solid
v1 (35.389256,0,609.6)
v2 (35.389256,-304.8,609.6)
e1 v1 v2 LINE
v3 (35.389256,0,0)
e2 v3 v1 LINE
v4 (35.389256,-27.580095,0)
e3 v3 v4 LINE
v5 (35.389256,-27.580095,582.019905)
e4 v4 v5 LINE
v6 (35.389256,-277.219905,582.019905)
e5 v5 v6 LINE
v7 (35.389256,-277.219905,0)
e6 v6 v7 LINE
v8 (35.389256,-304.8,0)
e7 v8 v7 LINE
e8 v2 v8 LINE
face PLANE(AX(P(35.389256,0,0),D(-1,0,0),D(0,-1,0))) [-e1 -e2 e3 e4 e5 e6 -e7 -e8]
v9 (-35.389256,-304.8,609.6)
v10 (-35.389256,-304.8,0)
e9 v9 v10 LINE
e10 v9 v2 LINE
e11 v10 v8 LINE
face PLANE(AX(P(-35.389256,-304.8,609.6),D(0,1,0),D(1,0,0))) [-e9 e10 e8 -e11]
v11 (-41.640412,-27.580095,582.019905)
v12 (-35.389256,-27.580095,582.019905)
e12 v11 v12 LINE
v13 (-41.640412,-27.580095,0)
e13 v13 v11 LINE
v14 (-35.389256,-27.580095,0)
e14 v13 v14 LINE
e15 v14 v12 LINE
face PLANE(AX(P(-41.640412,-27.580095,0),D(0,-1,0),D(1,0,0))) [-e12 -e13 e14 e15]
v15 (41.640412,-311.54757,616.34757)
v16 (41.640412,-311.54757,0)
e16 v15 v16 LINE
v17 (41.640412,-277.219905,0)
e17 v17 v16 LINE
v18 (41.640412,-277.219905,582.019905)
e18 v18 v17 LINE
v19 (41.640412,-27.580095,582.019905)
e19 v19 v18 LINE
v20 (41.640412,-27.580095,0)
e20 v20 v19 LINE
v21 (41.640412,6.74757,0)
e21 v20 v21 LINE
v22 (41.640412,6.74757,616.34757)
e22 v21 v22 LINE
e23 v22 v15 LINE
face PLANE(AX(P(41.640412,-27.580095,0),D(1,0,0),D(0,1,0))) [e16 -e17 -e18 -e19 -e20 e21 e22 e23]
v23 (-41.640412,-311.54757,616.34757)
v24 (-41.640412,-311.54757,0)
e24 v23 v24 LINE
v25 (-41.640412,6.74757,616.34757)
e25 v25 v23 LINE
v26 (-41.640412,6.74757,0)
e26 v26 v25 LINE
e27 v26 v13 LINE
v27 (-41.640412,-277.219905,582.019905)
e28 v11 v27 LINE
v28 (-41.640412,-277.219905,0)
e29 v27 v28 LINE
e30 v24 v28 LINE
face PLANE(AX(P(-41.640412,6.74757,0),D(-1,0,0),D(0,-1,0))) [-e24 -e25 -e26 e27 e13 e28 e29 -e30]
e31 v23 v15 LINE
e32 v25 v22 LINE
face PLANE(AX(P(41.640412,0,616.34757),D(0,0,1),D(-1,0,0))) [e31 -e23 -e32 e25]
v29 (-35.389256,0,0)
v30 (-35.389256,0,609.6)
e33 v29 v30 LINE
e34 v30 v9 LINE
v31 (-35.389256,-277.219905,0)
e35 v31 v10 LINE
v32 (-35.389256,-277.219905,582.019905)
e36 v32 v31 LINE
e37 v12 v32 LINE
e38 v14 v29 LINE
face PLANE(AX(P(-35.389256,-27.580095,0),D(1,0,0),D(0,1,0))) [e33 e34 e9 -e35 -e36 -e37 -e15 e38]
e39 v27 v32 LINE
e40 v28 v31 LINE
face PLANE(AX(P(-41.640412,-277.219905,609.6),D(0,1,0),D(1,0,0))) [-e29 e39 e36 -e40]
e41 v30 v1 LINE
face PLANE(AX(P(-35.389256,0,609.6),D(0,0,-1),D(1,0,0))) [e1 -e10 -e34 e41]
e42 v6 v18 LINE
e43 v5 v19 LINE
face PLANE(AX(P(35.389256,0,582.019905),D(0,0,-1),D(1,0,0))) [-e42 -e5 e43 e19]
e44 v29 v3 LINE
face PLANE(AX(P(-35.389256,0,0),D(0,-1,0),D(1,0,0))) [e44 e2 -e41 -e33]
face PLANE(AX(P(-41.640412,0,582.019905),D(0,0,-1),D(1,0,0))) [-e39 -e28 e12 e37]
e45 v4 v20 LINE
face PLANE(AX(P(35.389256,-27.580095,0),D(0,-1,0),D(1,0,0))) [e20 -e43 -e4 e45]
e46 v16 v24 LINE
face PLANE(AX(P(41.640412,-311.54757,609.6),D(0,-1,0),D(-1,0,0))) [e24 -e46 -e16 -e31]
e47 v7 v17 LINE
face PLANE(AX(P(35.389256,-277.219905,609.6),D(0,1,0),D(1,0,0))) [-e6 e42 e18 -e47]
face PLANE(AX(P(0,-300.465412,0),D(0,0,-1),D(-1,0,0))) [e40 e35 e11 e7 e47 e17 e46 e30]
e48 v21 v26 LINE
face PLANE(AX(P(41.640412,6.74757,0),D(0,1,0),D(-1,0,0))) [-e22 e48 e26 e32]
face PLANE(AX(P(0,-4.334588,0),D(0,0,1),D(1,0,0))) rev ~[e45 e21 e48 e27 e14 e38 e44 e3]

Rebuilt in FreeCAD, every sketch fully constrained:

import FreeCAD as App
import Part
import Sketcher
Q = App.Units.Quantity


def add_polygon(sketch, points):
    """Adds a closed chain of lines whose ends are joined by coincident constraints."""
    first, n = sketch.GeometryCount, len(points)
    for a, b in zip(points, points[1:] + points[:1]):
        sketch.addGeometry(Part.LineSegment(App.Vector(*a, 0), App.Vector(*b, 0)), False)
    for i in range(n):
        sketch.addConstraint(Sketcher.Constraint("Coincident", first + i, 2, first + (i + 1) % n, 1))

doc = App.newDocument("Part")
body = doc.addObject("PartDesign::Body", "Body")

# Sketch on XY plane
sketch1 = doc.addObject("Sketcher::SketchObject", "Sketch")
body.addObject(sketch1)
sketch1.AttachmentSupport = (doc.XY_Plane, [""])
sketch1.MapMode = "FlatFace"
add_polygon(sketch1, [(42, 7), (-42, 7), (-42, -28), (-35, -28), (-35, 0), (35, 0), (35, -28), (42, -28)])  # lines 0-7
sketch1.addConstraint(Sketcher.Constraint("Horizontal", 0))
sketch1.addConstraint(Sketcher.Constraint("Vertical", 1))
sketch1.addConstraint(Sketcher.Constraint("Horizontal", 2))
sketch1.addConstraint(Sketcher.Constraint("Vertical", 3))
sketch1.addConstraint(Sketcher.Constraint("Horizontal", 4))
sketch1.addConstraint(Sketcher.Constraint("Vertical", 5))
sketch1.addConstraint(Sketcher.Constraint("Horizontal", 6))
sketch1.addConstraint(Sketcher.Constraint("Vertical", 7))
sketch1.addConstraint(Sketcher.Constraint("Symmetric", 3, 2, 4, 2, -1, 1))
sketch1.addConstraint(Sketcher.Constraint("Symmetric", 1, 2, 6, 2, -2))
sketch1.addConstraint(Sketcher.Constraint("DistanceX", 4, 1, 4, 2, Q("70.778511 mm")))
sketch1.addConstraint(Sketcher.Constraint("DistanceX", 0, 2, 0, 1, Q("83.280824 mm")))
sketch1.addConstraint(Sketcher.Constraint("DistanceY", 1, 2, 1, 1, Q("34.327666 mm")))
sketch1.addConstraint(Sketcher.Constraint("DistanceY", 3, 1, 3, 2, Q("27.580095 mm")))

# Sketch on YZ plane
sketch2 = doc.addObject("Sketcher::SketchObject", "Sketch001")
body.addObject(sketch2)
sketch2.AttachmentSupport = (doc.YZ_Plane, [""])
sketch2.MapMode = "FlatFace"
sketch2.addGeometry(Part.LineSegment(App.Vector(0, 0, 0), App.Vector(0, 610, 0)), False)
sketch2.addGeometry(Part.LineSegment(App.Vector(0, 610, 0), App.Vector(-305, 610, 0)), False)
sketch2.addGeometry(Part.LineSegment(App.Vector(-305, 610, 0), App.Vector(-305, 0, 0)), False)
sketch2.addConstraint(Sketcher.Constraint("Coincident", 0, 2, 1, 1))
sketch2.addConstraint(Sketcher.Constraint("Coincident", 1, 2, 2, 1))
sketch2.addConstraint(Sketcher.Constraint("Vertical", 0))
sketch2.addConstraint(Sketcher.Constraint("Horizontal", 1))
sketch2.addConstraint(Sketcher.Constraint("Vertical", 2))
sketch2.addConstraint(Sketcher.Constraint("Coincident", 0, 1, -1, 1))
sketch2.addConstraint(Sketcher.Constraint("PointOnObject", 2, 2, -1))
sketch2.addConstraint(Sketcher.Constraint("DistanceX", 1, 2, 1, 1, Q("12 in")))
sketch2.addConstraint(Sketcher.Constraint("DistanceY", 0, 1, 0, 2, Q("24 in")))
doc.recompute()

additivepipe = doc.addObject("PartDesign::AdditivePipe", "AdditivePipe")
body.addObject(additivepipe)
additivepipe.Profile = sketch1
additivepipe.Spine = (sketch2, ["Edge1", "Edge2", "Edge3"])
additivepipe.Transition = "Right corner"

doc.recompute()
